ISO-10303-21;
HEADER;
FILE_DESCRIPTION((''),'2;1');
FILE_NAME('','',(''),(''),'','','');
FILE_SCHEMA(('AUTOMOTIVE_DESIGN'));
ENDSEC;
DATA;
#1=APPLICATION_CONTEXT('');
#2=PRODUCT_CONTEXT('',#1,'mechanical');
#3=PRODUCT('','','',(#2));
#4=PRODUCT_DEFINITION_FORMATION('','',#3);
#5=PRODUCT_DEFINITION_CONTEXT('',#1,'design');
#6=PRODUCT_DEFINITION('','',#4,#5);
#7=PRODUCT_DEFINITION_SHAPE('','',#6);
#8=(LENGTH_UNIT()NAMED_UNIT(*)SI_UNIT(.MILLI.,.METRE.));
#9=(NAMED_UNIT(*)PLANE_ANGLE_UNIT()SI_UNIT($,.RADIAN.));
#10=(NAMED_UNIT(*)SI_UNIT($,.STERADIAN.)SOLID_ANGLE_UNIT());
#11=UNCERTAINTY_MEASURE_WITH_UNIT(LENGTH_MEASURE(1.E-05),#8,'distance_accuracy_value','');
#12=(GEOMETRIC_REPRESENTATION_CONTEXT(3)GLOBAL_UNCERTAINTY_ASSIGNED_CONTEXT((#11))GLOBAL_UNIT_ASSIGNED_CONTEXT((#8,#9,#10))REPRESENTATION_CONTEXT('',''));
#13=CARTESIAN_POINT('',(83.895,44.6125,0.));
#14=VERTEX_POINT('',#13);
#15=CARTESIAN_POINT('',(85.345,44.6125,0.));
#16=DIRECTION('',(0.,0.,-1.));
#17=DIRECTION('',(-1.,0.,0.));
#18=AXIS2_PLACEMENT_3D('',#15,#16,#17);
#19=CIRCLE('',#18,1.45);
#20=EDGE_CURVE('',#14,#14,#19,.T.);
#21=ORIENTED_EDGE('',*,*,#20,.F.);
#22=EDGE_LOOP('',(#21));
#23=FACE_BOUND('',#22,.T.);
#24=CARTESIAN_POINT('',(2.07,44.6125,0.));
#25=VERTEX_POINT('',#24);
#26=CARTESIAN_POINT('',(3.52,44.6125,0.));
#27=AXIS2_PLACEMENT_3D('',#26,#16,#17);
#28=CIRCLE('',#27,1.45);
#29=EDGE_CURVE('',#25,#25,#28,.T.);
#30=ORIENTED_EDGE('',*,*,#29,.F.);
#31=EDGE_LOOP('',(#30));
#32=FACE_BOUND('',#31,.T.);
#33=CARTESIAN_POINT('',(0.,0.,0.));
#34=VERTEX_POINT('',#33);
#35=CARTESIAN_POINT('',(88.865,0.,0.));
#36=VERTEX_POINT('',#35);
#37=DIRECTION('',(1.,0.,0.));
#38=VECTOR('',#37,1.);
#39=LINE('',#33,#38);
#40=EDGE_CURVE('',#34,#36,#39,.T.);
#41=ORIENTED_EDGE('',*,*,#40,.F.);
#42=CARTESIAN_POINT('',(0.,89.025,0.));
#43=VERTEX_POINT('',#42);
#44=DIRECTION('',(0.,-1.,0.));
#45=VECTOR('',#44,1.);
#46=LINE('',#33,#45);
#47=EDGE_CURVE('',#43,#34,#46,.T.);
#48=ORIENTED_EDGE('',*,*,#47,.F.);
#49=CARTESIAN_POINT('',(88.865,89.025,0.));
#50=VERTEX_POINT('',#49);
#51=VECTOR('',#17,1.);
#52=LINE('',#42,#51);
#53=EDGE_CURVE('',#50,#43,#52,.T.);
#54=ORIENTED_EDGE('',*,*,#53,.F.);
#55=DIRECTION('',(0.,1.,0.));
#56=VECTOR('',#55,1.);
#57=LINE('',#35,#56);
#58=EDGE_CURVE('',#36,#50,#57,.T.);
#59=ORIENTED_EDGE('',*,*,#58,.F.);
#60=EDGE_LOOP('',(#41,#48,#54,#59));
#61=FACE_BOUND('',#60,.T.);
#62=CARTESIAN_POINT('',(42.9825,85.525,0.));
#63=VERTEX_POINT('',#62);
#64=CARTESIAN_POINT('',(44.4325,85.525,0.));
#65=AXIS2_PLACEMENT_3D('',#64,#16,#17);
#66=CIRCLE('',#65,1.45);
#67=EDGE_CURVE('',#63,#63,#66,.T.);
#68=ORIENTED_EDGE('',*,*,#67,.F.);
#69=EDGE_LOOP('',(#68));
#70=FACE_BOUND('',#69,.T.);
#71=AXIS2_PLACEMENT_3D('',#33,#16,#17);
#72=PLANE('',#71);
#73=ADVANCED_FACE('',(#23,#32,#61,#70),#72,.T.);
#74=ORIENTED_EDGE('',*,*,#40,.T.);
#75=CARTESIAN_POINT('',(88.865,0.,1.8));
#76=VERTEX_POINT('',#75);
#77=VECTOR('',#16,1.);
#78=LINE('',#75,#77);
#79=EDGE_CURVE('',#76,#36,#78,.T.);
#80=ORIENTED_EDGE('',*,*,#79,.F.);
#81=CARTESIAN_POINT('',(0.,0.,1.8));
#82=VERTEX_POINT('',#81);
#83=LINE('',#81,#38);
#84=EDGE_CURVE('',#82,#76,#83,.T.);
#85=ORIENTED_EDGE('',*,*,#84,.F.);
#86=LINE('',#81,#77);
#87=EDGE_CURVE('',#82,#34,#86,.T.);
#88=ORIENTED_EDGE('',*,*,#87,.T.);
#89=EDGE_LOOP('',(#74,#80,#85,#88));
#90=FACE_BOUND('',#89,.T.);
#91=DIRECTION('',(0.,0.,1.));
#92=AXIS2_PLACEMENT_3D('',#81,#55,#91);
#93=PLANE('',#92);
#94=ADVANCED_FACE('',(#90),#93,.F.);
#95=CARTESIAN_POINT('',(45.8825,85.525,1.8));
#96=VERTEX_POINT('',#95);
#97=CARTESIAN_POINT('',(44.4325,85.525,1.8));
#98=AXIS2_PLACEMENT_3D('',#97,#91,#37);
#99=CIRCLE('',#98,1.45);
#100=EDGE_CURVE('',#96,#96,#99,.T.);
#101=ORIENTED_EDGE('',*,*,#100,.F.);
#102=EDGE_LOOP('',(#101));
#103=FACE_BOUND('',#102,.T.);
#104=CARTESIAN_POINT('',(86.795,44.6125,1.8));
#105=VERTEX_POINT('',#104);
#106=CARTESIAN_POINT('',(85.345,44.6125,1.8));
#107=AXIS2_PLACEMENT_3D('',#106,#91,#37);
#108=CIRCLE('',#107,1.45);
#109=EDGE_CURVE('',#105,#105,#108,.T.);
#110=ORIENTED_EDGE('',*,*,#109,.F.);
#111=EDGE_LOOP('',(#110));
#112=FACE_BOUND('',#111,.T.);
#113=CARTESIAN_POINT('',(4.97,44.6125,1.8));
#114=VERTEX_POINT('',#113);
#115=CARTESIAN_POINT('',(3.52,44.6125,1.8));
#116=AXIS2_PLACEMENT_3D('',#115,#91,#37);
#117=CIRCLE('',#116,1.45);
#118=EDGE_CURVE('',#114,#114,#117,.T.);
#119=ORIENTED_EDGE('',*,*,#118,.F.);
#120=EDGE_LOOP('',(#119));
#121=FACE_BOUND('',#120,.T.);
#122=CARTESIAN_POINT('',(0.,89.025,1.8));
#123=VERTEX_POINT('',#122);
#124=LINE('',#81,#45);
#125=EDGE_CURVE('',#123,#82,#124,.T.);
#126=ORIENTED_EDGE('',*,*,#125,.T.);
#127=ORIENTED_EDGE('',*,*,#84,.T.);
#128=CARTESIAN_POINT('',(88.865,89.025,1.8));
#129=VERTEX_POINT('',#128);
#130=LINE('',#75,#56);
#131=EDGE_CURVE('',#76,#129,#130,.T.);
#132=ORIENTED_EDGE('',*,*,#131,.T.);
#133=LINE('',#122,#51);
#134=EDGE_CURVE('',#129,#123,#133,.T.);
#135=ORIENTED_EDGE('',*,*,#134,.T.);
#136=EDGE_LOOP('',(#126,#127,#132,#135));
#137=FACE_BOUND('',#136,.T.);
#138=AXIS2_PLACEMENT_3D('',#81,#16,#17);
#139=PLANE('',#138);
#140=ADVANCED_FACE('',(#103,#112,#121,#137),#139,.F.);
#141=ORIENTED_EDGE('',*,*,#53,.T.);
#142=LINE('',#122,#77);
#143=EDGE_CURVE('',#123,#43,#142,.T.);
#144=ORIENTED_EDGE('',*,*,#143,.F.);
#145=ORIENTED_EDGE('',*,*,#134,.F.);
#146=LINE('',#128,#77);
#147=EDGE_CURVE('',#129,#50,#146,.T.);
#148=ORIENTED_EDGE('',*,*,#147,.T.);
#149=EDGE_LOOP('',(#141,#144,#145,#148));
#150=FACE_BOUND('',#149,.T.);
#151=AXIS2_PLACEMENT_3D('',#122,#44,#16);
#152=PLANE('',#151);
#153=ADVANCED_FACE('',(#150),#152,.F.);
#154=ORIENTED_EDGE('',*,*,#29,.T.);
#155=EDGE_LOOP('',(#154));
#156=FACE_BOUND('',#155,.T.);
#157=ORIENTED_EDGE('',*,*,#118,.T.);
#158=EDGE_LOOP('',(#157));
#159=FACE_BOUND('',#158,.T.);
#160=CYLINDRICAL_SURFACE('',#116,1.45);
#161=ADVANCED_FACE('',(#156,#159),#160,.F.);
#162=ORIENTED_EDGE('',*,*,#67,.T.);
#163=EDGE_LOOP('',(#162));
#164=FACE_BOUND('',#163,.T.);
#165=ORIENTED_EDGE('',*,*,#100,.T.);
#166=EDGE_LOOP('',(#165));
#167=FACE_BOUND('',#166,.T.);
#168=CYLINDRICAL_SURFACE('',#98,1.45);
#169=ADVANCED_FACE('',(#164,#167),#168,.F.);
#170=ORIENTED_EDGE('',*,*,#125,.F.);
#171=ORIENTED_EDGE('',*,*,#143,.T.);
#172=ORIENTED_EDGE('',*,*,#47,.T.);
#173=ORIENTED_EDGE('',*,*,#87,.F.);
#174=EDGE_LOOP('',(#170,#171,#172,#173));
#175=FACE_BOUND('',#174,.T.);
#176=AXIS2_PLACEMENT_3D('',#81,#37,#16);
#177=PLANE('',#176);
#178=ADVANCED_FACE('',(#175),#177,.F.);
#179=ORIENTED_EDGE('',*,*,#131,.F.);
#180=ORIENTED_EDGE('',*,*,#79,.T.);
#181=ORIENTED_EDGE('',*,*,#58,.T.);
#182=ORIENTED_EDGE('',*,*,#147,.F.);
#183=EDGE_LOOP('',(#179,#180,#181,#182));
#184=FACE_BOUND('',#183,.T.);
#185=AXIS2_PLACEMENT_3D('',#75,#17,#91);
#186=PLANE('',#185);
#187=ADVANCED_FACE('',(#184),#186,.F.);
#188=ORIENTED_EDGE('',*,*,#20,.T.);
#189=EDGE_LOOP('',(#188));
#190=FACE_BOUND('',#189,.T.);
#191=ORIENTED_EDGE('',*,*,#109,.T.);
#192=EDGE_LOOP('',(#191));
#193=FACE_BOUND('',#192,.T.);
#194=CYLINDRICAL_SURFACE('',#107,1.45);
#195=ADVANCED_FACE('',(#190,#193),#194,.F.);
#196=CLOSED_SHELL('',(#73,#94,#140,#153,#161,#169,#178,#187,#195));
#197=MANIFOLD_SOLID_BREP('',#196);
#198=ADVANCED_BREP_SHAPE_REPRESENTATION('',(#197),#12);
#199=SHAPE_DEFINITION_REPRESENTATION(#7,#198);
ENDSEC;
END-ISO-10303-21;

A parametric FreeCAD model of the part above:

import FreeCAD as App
import Part
import Sketcher
from FreeCAD import Vector

doc = App.newDocument("Part")
params = doc.addObject("Spreadsheet::Sheet", "Params")
for row, (alias, value) in enumerate([
    ("pad1_length", "1.8 mm"),
    ("sketch2_diameter", "2.9 mm"),
    ("hole_diameter", "2.9 mm"),
    ("hole_depth", "4 mm"),
], start=1):
    params.set(f"A{row}", alias)
    params.set(f"B{row}", "=" + value)
    params.setAlias(f"B{row}", alias)

body = doc.addObject("PartDesign::Body", "Body")

# Sketch on XY plane
sketch1 = body.newObject("Sketcher::SketchObject", "Sketch")
sketch1.AttachmentSupport = (doc.getObject("XY_Plane"), [""])
sketch1.MapMode = "FlatFace"
sketch1.addGeometry([
    Part.LineSegment(Vector(0, 89, 0), Vector(0, 0, 0)),
    Part.LineSegment(Vector(0, 0, 0), Vector(89, 0, 0)),
    Part.LineSegment(Vector(89, 0, 0), Vector(89, 89, 0)),
    Part.LineSegment(Vector(89, 89, 0), Vector(0, 89, 0)),
], False)
sketch1.addConstraint([
    Sketcher.Constraint("Coincident", 0, 2, 1, 1),
    Sketcher.Constraint("Coincident", 1, 2, 2, 1),
    Sketcher.Constraint("Coincident", 2, 2, 3, 1),
    Sketcher.Constraint("Coincident", 3, 2, 0, 1),
    Sketcher.Constraint("Vertical", 0),
    Sketcher.Constraint("Horizontal", 1),
    Sketcher.Constraint("Vertical", 2),
    Sketcher.Constraint("Horizontal", 3),
    Sketcher.Constraint("Coincident", 0, 2, -1, 1),
    Sketcher.Constraint("DistanceX", 1, 1, 1, 2, 88.865),
    Sketcher.Constraint("DistanceY", 0, 2, 0, 1, 89.025),
])
pad1 = body.newObject("PartDesign::Pad", "Pad")
pad1.Profile = sketch1
pad1.setExpression("Length", "Params.pad1_length")

# Sketch on XY plane
sketch2 = body.newObject("Sketcher::SketchObject", "Sketch001")
sketch2.AttachmentSupport = (doc.getObject("XY_Plane"), [""])
sketch2.MapMode = "FlatFace"
sketch2.AttachmentOffset = App.Placement(Vector(0, 0, 1.8), App.Rotation())
sketch2.addGeometry([
    Part.Circle(Vector(44.4, 85.5, 0), Vector(0, 0, 1), 1.4),
    Part.Circle(Vector(3.5, 44.6, 0), Vector(0, 0, 1), 1.4),
    Part.Circle(Vector(85.3, 44.6, 0), Vector(0, 0, 1), 1.4),
], False)
sketch2.addConstraint([
    Sketcher.Constraint("Equal", 0, 1),
    Sketcher.Constraint("Equal", 1, 2),
    Sketcher.Constraint("Horizontal", 1, 3, 2, 3),
    Sketcher.Constraint("Diameter", 0, 2.9),
    Sketcher.Constraint("DistanceX", -1, 1, 1, 3, 3.52),
    Sketcher.Constraint("DistanceY", -1, 1, 0, 3, 85.525),
    Sketcher.Constraint("DistanceX", -1, 1, 2, 3, 85.345),
    Sketcher.Constraint("DistanceX", -1, 1, 0, 3, 44.4325),
    Sketcher.Constraint("DistanceY", -1, 1, 1, 3, 44.6125),
])
sketch2.setExpression("Constraints[3]", "Params.sketch2_diameter")
doc.recompute()
hole = body.newObject("PartDesign::Hole", "Hole")
hole.Profile = sketch2
hole.ThreadType = "None"
hole.setExpression("Diameter", "Params.hole_diameter")
hole.DepthType = "Dimension"
hole.setExpression("Depth", "Params.hole_depth")
hole.DrillPoint = "Angled"
hole.DrillPointAngle = 118

doc.recompute()
